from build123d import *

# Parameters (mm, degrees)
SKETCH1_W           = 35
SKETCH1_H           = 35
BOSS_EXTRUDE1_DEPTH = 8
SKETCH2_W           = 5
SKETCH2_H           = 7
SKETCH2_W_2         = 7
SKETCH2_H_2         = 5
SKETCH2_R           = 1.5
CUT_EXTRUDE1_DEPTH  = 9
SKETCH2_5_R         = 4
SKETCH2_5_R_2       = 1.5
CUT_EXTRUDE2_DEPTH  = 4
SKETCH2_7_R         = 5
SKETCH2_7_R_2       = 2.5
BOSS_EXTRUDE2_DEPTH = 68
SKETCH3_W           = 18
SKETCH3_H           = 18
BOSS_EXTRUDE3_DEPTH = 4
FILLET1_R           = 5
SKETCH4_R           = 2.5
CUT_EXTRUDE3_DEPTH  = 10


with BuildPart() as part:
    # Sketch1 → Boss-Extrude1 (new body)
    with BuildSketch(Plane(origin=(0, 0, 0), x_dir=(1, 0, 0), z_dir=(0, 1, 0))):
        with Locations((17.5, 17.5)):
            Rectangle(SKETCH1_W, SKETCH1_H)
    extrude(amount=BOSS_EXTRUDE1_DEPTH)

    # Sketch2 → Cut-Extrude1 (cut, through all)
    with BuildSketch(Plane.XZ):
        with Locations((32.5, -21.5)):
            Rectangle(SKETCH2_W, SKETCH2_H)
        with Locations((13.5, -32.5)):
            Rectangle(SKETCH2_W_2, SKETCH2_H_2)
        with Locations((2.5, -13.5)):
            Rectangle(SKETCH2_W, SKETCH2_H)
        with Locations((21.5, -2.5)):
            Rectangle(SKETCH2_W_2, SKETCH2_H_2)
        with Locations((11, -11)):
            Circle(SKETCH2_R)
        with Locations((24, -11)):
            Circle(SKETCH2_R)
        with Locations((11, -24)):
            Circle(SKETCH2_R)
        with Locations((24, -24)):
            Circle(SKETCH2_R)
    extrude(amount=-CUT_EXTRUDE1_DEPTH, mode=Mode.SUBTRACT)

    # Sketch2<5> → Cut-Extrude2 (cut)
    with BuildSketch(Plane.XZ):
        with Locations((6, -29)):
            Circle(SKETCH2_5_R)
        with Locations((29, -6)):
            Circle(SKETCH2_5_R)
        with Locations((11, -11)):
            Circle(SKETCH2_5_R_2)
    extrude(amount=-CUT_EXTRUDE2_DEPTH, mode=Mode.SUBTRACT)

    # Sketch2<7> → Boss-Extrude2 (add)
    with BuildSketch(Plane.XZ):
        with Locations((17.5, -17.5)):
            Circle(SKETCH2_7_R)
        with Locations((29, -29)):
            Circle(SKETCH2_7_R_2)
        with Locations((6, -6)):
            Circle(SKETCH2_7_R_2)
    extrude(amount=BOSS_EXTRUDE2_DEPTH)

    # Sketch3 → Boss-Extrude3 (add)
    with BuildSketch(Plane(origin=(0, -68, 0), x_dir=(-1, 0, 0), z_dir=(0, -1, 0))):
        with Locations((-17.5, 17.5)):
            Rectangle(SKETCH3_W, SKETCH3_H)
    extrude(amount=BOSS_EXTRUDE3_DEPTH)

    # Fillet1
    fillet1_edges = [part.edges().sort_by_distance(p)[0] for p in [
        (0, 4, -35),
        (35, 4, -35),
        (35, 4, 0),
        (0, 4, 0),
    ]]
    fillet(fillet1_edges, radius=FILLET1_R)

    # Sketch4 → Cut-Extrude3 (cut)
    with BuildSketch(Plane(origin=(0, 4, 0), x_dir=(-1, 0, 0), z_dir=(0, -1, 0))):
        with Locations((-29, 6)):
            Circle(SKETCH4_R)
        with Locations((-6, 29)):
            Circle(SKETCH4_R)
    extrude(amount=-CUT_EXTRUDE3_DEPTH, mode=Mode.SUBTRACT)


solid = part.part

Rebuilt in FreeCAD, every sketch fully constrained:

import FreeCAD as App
import Part
import Sketcher
from FreeCAD import Vector
Q = App.Units.Quantity


def edges_at(feature, points):
    """Names of the edges that pass closest to the given points."""
    edges = feature.Shape.Edges
    near = lambda p: min(range(len(edges)), key=lambda i: edges[i].distToShape(Part.Vertex(*p))[0])
    return sorted({f"Edge{near(p) + 1}" for p in points})


def add_polygon(sketch, points):
    """Adds a closed chain of lines whose ends are joined by coincident constraints."""
    first, n = sketch.GeometryCount, len(points)
    for a, b in zip(points, points[1:] + points[:1]):
        sketch.addGeometry(Part.LineSegment(App.Vector(*a, 0), App.Vector(*b, 0)), False)
    for i in range(n):
        sketch.addConstraint(Sketcher.Constraint("Coincident", first + i, 2, first + (i + 1) % n, 1))

doc = App.newDocument("Part")
body = doc.addObject("PartDesign::Body", "Body")

# Sketch on XZ plane
sketch1 = body.newObject("Sketcher::SketchObject", "Sketch")
sketch1.AttachmentSupport = (doc.getObject("XZ_Plane"), [""])
sketch1.MapMode = "FlatFace"
add_polygon(sketch1, [(0, -35), (0, 0), (35, 0), (35, -35)])  # lines 0-3
sketch1.addConstraint(Sketcher.Constraint("Vertical", 0))
sketch1.addConstraint(Sketcher.Constraint("Horizontal", 1))
sketch1.addConstraint(Sketcher.Constraint("Vertical", 2))
sketch1.addConstraint(Sketcher.Constraint("Horizontal", 3))
sketch1.addConstraint(Sketcher.Constraint("Coincident", 0, 2, -1, 1))
sketch1.addConstraint(Sketcher.Constraint("Equal", 3, 0))
sketch1.addConstraint(Sketcher.Constraint("DistanceX", 1, 1, 1, 2, Q("35 mm")))
pad1 = body.newObject("PartDesign::Pad", "Pad")
pad1.Profile = sketch1
pad1.Length = 8
pad1.Reversed = True

# Sketch on XZ plane
sketch2 = body.newObject("Sketcher::SketchObject", "Sketch001")
sketch2.AttachmentSupport = (doc.getObject("XZ_Plane"), [""])
sketch2.MapMode = "FlatFace"
add_polygon(sketch2, [(30, -18), (30, -25), (35, -25), (35, -18)])  # lines 0-3
add_polygon(sketch2, [(10, -30), (10, -35), (17, -35), (17, -30)])  # lines 4-7
add_polygon(sketch2, [(0, -10), (0, -17), (5, -17), (5, -10)])  # lines 8-11
add_polygon(sketch2, [(18, 0), (18, -5), (25, -5), (25, 0)])  # lines 12-15
sketch2.addGeometry(Part.Circle(Vector(11, -11, 0), Vector(0, 0, 1), 1.5), False)  # 16
sketch2.addGeometry(Part.Circle(Vector(24, -11, 0), Vector(0, 0, 1), 1.5), False)  # 17
sketch2.addGeometry(Part.Circle(Vector(11, -24, 0), Vector(0, 0, 1), 1.5), False)  # 18
sketch2.addGeometry(Part.Circle(Vector(24, -24, 0), Vector(0, 0, 1), 1.5), False)  # 19
sketch2.addConstraint(Sketcher.Constraint("Vertical", 0))
sketch2.addConstraint(Sketcher.Constraint("Horizontal", 1))
sketch2.addConstraint(Sketcher.Constraint("Vertical", 2))
sketch2.addConstraint(Sketcher.Constraint("Horizontal", 3))
sketch2.addConstraint(Sketcher.Constraint("Vertical", 4))
sketch2.addConstraint(Sketcher.Constraint("Horizontal", 5))
sketch2.addConstraint(Sketcher.Constraint("Vertical", 6))
sketch2.addConstraint(Sketcher.Constraint("Horizontal", 7))
sketch2.addConstraint(Sketcher.Constraint("Vertical", 8))
sketch2.addConstraint(Sketcher.Constraint("Horizontal", 9))
sketch2.addConstraint(Sketcher.Constraint("Vertical", 10))
sketch2.addConstraint(Sketcher.Constraint("Horizontal", 11))
sketch2.addConstraint(Sketcher.Constraint("Vertical", 12))
sketch2.addConstraint(Sketcher.Constraint("Horizontal", 13))
sketch2.addConstraint(Sketcher.Constraint("Vertical", 14))
sketch2.addConstraint(Sketcher.Constraint("Horizontal", 15))
sketch2.addConstraint(Sketcher.Constraint("Equal", 16, 17))
sketch2.addConstraint(Sketcher.Constraint("Equal", 17, 18))
sketch2.addConstraint(Sketcher.Constraint("Equal", 18, 19))
sketch2.addConstraint(Sketcher.Constraint("PointOnObject", 8, 2, -2))
sketch2.addConstraint(Sketcher.Constraint("PointOnObject", 14, 2, -1))
sketch2.addConstraint(Sketcher.Constraint("Horizontal", 16, 3, 17, 3))
sketch2.addConstraint(Sketcher.Constraint("Horizontal", 18, 3, 19, 3))
sketch2.addConstraint(Sketcher.Constraint("Vertical", 16, 3, 18, 3))
sketch2.addConstraint(Sketcher.Constraint("Vertical", 17, 3, 19, 3))
sketch2.addConstraint(Sketcher.Constraint("Equal", 3, 9))
sketch2.addConstraint(Sketcher.Constraint("Equal", 7, 13))
sketch2.addConstraint(Sketcher.Constraint("Equal", 15, 0))
sketch2.addConstraint(Sketcher.Constraint("Equal", 11, 4))
sketch2.addConstraint(Sketcher.Constraint("Equal", 2, 8))
sketch2.addConstraint(Sketcher.Constraint("Equal", 6, 12))
sketch2.addConstraint(Sketcher.Constraint("Diameter", 16, Q("3 mm")))
sketch2.addConstraint(Sketcher.Constraint("DistanceX", 1, 1, 1, 2, Q("5 mm")))
sketch2.addConstraint(Sketcher.Constraint("DistanceX", 5, 1, 5, 2, Q("7 mm")))
sketch2.addConstraint(Sketcher.Constraint("DistanceX", -1, 1, 16, 3, Q("11 mm")))
sketch2.addConstraint(Sketcher.Constraint("DistanceY", 16, 3, -1, 1, Q("11 mm")))
sketch2.addConstraint(Sketcher.Constraint("DistanceX", -1, 1, 17, 3, Q("24 mm")))
sketch2.addConstraint(Sketcher.Constraint("DistanceY", 18, 3, -1, 1, Q("24 mm")))
sketch2.addConstraint(Sketcher.Constraint("DistanceX", -1, 1, 0, 2, Q("30 mm")))
sketch2.addConstraint(Sketcher.Constraint("DistanceY", 0, 2, -1, 1, Q("25 mm")))
sketch2.addConstraint(Sketcher.Constraint("DistanceX", -1, 1, 4, 2, Q("10 mm")))
sketch2.addConstraint(Sketcher.Constraint("DistanceY", 4, 2, -1, 1, Q("35 mm")))
sketch2.addConstraint(Sketcher.Constraint("DistanceY", 8, 2, -1, 1, Q("17 mm")))
sketch2.addConstraint(Sketcher.Constraint("DistanceX", -1, 1, 12, 2, Q("18 mm")))
pocket1 = body.newObject("PartDesign::Pocket", "Pocket")
pocket1.Profile = sketch2
pocket1.Type = "ThroughAll"

# Sketch on XZ plane
sketch3 = body.newObject("Sketcher::SketchObject", "Sketch002")
sketch3.AttachmentSupport = (doc.getObject("XZ_Plane"), [""])
sketch3.MapMode = "FlatFace"
sketch3.addGeometry(Part.Circle(Vector(6, -29, 0), Vector(0, 0, 1), 4), False)
sketch3.addGeometry(Part.Circle(Vector(29, -6, 0), Vector(0, 0, 1), 4), False)
sketch3.addGeometry(Part.Circle(Vector(11, -11, 0), Vector(0, 0, 1), 1.5), False)
sketch3.addConstraint(Sketcher.Constraint("Equal", 0, 1))
sketch3.addConstraint(Sketcher.Constraint("Diameter", 0, Q("8 mm")))
sketch3.addConstraint(Sketcher.Constraint("Diameter", 2, Q("3 mm")))
sketch3.addConstraint(Sketcher.Constraint("DistanceX", -1, 1, 0, 3, Q("6 mm")))
sketch3.addConstraint(Sketcher.Constraint("DistanceY", 0, 3, -1, 1, Q("29 mm")))
sketch3.addConstraint(Sketcher.Constraint("DistanceX", -1, 1, 1, 3, Q("29 mm")))
sketch3.addConstraint(Sketcher.Constraint("DistanceY", 1, 3, -1, 1, Q("6 mm")))
sketch3.addConstraint(Sketcher.Constraint("DistanceX", -1, 1, 2, 3, Q("11 mm")))
sketch3.addConstraint(Sketcher.Constraint("DistanceY", 2, 3, -1, 1, Q("11 mm")))
pocket2 = body.newObject("PartDesign::Pocket", "Pocket001")
pocket2.Profile = sketch3
pocket2.Length = 4

# Sketch on XZ plane
sketch4 = body.newObject("Sketcher::SketchObject", "Sketch003")
sketch4.AttachmentSupport = (doc.getObject("XZ_Plane"), [""])
sketch4.MapMode = "FlatFace"
sketch4.addGeometry(Part.Circle(Vector(17.5, -17.5, 0), Vector(0, 0, 1), 5), False)
sketch4.addGeometry(Part.Circle(Vector(29, -29, 0), Vector(0, 0, 1), 2.5), False)
sketch4.addGeometry(Part.Circle(Vector(6, -6, 0), Vector(0, 0, 1), 2.5), False)
sketch4.addConstraint(Sketcher.Constraint("Equal", 1, 2))
sketch4.addConstraint(Sketcher.Constraint("Diameter", 0, Q("10 mm")))
sketch4.addConstraint(Sketcher.Constraint("Diameter", 1, Q("5 mm")))
sketch4.addConstraint(Sketcher.Constraint("DistanceX", -1, 1, 1, 3, Q("29 mm")))
sketch4.addConstraint(Sketcher.Constraint("DistanceY", 1, 3, -1, 1, Q("29 mm")))
sketch4.addConstraint(Sketcher.Constraint("DistanceX", -1, 1, 2, 3, Q("6 mm")))
sketch4.addConstraint(Sketcher.Constraint("DistanceY", 2, 3, -1, 1, Q("6 mm")))
sketch4.addConstraint(Sketcher.Constraint("DistanceX", -1, 1, 0, 3, Q("17.5 mm")))
sketch4.addConstraint(Sketcher.Constraint("DistanceY", 0, 3, -1, 1, Q("17.5 mm")))
pad2 = body.newObject("PartDesign::Pad", "Pad001")
pad2.Profile = sketch4
pad2.Length = 68

# Sketch on XZ plane
sketch5 = body.newObject("Sketcher::SketchObject", "Sketch004")
sketch5.AttachmentSupport = (doc.getObject("XZ_Plane"), [""])
sketch5.MapMode = "FlatFace"
sketch5.AttachmentOffset = App.Placement(Vector(0, 0, 68), App.Rotation())
add_polygon(sketch5, [(26.5, -26.5), (26.5, -8.5), (8.5, -8.5), (8.5, -26.5)])  # lines 0-3
sketch5.addConstraint(Sketcher.Constraint("Vertical", 0))
sketch5.addConstraint(Sketcher.Constraint("Horizontal", 1))
sketch5.addConstraint(Sketcher.Constraint("Vertical", 2))
sketch5.addConstraint(Sketcher.Constraint("Horizontal", 3))
sketch5.addConstraint(Sketcher.Constraint("Equal", 3, 0))
sketch5.addConstraint(Sketcher.Constraint("DistanceX", 1, 2, 1, 1, Q("18 mm")))
sketch5.addConstraint(Sketcher.Constraint("DistanceX", -1, 1, 0, 2, Q("26.5 mm")))
sketch5.addConstraint(Sketcher.Constraint("DistanceY", 0, 2, -1, 1, Q("8.5 mm")))
pad3 = body.newObject("PartDesign::Pad", "Pad002")
pad3.Profile = sketch5
pad3.Length = 4
doc.recompute()

fillet = body.newObject("PartDesign::Fillet", "Fillet")
fillet.Base = (pad3, edges_at(pad3, [
    (0, 4, -35),
    (35, 4, -35),
    (35, 4, 0),
    (0, 4, 0),
]))
fillet.Radius = 5

# Sketch on XZ plane
sketch6 = body.newObject("Sketcher::SketchObject", "Sketch005")
sketch6.AttachmentSupport = (doc.getObject("XZ_Plane"), [""])
sketch6.MapMode = "FlatFace"
sketch6.AttachmentOffset = App.Placement(Vector(0, 0, -4), App.Rotation())
sketch6.addGeometry(Part.Circle(Vector(29, -6, 0), Vector(0, 0, 1), 2.5), False)
sketch6.addGeometry(Part.Circle(Vector(6, -29, 0), Vector(0, 0, 1), 2.5), False)
sketch6.addConstraint(Sketcher.Constraint("Equal", 0, 1))
sketch6.addConstraint(Sketcher.Constraint("Diameter", 0, Q("5 mm")))
sketch6.addConstraint(Sketcher.Constraint("DistanceX", -1, 1, 0, 3, Q("29 mm")))
sketch6.addConstraint(Sketcher.Constraint("DistanceY", 0, 3, -1, 1, Q("6 mm")))
sketch6.addConstraint(Sketcher.Constraint("DistanceX", -1, 1, 1, 3, Q("6 mm")))
sketch6.addConstraint(Sketcher.Constraint("DistanceY", 1, 3, -1, 1, Q("29 mm")))
pocket3 = body.newObject("PartDesign::Pocket", "Pocket002")
pocket3.Profile = sketch6
pocket3.Length = 10

doc.recompute()
